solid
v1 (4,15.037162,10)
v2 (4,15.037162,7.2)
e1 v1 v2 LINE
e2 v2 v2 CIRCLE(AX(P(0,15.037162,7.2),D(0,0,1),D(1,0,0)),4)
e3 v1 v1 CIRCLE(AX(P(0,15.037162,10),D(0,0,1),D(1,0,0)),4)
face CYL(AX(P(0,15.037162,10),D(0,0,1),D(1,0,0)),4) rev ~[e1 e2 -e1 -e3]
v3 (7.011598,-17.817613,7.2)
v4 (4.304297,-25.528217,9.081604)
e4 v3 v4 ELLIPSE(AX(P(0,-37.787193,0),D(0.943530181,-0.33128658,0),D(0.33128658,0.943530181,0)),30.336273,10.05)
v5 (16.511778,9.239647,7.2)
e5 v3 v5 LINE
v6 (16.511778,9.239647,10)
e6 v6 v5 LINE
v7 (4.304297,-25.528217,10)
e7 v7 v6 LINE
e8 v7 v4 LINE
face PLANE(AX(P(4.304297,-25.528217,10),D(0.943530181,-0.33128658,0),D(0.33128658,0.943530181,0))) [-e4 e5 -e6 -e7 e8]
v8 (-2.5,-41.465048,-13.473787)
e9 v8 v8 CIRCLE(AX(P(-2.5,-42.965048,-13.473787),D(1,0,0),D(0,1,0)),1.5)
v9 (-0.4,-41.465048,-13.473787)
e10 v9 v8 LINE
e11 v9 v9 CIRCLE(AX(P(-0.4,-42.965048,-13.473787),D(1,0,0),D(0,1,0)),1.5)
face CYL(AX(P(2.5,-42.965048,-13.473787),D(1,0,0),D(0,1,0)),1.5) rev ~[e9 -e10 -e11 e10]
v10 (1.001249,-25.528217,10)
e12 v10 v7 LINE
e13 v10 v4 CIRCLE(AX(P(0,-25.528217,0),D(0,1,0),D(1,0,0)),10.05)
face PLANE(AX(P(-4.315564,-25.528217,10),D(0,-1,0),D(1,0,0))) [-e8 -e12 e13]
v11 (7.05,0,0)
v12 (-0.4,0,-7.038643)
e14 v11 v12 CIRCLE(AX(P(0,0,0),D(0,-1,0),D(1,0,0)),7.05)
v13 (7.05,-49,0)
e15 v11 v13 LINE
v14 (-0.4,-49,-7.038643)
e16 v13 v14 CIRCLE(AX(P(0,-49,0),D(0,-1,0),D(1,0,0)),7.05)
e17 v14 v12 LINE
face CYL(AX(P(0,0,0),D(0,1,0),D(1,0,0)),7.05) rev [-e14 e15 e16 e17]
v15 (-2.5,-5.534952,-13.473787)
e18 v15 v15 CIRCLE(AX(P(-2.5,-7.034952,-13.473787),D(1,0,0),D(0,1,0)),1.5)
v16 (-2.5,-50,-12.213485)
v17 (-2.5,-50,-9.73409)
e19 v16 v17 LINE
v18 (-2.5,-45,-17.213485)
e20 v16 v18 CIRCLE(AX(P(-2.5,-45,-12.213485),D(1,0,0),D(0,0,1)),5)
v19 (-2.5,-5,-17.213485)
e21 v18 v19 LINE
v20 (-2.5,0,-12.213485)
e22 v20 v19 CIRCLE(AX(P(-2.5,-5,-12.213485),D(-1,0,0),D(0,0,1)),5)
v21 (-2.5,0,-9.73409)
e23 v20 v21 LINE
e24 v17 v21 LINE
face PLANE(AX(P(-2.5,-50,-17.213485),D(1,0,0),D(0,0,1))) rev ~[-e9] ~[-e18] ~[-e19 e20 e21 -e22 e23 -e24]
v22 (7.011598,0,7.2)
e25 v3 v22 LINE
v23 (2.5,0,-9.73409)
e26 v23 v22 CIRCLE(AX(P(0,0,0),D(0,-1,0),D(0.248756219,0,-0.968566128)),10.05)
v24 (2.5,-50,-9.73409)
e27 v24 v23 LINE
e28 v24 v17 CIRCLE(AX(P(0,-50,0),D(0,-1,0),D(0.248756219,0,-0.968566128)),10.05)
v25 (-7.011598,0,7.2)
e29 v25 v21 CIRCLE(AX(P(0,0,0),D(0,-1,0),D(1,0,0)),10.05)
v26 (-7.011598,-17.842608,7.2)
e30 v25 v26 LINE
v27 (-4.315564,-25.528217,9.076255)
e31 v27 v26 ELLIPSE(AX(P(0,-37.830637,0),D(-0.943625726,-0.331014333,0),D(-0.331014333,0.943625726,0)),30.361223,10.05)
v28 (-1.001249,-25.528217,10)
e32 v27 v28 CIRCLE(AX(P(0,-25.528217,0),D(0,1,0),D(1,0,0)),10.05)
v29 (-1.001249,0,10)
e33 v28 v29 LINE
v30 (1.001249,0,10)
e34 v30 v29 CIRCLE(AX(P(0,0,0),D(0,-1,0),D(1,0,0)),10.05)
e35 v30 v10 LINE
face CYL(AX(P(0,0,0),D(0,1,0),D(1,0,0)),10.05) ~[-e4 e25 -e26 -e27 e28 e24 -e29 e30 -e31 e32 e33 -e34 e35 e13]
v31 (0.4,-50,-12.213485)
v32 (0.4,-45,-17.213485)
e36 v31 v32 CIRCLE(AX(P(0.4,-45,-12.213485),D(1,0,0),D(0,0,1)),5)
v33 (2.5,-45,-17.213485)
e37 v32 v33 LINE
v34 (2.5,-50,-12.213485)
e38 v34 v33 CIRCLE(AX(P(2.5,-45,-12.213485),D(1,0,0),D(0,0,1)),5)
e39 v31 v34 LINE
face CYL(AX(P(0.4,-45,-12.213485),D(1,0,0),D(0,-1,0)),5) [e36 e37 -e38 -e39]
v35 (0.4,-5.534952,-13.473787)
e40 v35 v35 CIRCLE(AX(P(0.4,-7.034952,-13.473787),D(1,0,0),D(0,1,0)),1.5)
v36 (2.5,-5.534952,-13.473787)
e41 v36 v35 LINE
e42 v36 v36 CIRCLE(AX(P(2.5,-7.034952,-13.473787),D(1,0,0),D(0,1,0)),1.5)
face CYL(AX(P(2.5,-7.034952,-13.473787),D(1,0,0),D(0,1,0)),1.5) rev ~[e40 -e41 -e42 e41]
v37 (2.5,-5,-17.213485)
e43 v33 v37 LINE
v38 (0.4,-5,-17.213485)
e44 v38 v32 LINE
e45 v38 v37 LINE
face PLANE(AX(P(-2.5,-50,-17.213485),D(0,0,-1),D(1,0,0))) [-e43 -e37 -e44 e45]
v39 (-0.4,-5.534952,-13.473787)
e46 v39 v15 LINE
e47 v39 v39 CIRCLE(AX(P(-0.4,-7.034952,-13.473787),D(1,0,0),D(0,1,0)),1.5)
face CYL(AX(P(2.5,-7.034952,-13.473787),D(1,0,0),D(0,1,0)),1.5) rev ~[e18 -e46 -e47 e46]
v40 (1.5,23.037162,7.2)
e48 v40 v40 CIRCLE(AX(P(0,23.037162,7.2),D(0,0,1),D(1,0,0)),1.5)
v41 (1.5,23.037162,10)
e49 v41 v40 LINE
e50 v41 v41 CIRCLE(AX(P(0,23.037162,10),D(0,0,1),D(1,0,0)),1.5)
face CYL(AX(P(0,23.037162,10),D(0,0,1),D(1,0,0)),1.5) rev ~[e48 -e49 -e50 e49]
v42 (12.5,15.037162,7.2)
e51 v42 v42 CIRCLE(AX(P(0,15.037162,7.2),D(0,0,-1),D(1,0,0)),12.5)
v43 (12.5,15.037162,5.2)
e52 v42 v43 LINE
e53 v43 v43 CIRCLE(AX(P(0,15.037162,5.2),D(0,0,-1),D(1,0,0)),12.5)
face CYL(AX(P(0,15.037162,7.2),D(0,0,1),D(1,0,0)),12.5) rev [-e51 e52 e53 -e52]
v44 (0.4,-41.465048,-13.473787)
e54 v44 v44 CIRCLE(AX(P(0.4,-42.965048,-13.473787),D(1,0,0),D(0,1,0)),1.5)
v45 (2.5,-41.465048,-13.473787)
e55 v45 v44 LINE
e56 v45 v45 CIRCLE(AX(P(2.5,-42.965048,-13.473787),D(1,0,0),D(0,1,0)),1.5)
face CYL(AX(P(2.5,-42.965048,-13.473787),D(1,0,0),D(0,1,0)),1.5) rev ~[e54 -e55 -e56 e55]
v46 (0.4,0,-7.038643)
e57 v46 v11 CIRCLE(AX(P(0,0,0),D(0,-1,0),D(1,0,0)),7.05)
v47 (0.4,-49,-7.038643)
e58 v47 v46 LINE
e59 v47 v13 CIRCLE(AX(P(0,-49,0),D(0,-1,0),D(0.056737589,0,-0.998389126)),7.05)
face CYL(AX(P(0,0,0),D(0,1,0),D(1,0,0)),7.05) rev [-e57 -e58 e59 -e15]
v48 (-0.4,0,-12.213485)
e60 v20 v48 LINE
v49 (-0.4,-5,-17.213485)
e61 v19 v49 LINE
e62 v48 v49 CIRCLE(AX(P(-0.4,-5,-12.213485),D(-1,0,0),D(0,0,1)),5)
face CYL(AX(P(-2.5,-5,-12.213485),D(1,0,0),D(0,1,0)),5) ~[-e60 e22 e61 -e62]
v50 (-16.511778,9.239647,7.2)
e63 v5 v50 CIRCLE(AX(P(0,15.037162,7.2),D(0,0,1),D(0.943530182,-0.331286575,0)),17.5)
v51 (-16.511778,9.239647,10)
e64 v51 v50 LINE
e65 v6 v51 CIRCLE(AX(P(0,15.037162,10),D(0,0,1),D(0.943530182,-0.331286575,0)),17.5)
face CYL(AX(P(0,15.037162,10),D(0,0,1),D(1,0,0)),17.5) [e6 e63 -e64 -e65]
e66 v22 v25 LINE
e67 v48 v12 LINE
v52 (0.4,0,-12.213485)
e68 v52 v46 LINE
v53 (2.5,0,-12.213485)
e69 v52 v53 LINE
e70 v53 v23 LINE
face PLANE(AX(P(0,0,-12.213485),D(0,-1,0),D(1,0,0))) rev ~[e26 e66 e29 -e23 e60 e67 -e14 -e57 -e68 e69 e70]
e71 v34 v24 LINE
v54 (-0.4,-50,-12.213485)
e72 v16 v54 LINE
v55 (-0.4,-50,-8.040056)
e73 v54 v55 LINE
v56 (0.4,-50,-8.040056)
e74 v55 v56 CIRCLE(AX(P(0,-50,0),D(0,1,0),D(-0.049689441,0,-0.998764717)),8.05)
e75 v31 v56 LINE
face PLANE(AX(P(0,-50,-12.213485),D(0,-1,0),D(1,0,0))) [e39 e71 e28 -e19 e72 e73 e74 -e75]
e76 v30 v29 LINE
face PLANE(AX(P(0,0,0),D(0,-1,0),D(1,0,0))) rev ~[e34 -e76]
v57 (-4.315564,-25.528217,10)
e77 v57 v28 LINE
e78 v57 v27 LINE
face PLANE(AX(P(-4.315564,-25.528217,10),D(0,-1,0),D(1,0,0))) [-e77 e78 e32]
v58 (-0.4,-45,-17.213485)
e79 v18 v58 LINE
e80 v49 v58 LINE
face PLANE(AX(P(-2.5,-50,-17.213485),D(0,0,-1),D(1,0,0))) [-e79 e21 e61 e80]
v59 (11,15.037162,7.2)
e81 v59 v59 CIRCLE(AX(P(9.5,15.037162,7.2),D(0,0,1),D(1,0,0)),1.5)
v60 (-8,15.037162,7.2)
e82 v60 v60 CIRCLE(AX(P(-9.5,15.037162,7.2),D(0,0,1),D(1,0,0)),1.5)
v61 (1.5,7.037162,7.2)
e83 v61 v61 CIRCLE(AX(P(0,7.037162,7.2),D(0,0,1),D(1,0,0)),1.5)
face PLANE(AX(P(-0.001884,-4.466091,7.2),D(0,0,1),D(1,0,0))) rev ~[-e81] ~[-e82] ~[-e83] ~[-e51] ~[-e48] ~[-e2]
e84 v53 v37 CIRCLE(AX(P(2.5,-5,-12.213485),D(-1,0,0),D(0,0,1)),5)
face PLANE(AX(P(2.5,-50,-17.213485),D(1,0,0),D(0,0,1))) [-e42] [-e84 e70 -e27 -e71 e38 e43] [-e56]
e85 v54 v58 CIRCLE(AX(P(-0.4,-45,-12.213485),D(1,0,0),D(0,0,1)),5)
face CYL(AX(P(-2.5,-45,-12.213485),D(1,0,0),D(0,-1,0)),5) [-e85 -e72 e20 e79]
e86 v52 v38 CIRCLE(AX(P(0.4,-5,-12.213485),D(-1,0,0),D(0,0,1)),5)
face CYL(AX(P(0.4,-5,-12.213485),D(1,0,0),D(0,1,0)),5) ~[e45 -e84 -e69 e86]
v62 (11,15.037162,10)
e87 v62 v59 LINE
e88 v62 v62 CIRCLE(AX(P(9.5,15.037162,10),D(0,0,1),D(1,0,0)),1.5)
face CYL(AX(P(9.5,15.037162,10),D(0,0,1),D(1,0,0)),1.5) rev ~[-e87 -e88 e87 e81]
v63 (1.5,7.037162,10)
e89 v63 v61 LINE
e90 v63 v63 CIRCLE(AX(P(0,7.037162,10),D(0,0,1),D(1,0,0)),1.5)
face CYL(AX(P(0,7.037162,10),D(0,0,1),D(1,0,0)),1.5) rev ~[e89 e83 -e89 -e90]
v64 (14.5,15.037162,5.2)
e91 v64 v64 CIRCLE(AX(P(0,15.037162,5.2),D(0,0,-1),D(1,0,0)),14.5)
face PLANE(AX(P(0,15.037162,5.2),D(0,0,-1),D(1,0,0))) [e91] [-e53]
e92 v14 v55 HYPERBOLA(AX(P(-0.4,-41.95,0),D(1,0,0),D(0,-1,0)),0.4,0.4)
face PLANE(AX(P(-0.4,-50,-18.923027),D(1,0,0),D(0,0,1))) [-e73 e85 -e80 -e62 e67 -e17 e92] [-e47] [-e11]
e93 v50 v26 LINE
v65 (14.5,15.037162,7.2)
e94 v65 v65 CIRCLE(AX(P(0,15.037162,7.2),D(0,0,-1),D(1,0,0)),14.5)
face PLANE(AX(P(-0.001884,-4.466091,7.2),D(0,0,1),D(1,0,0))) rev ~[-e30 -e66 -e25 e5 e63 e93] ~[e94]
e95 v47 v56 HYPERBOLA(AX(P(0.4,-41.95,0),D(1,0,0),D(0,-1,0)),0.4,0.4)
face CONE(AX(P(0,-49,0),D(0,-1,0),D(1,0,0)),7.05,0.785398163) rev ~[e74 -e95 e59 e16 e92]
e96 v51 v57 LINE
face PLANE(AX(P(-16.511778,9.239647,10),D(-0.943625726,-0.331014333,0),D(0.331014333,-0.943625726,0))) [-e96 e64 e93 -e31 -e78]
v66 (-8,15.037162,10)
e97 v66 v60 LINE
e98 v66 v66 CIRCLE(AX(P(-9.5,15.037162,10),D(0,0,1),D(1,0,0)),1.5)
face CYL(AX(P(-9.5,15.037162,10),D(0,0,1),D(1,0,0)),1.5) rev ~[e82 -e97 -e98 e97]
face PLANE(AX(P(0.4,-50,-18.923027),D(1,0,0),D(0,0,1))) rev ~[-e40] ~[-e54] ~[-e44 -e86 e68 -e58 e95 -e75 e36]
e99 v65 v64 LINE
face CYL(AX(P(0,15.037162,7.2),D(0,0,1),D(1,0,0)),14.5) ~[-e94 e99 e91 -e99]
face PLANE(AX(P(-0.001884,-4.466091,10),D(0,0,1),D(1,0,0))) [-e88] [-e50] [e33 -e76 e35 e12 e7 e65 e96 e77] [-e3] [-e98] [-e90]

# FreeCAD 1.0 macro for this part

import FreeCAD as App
import Part
import Sketcher


def edges_at(feature, points):
    """Names of the edges that pass closest to the given points."""
    edges = feature.Shape.Edges
    near = lambda p: min(range(len(edges)), key=lambda i: edges[i].distToShape(Part.Vertex(*p))[0])
    return sorted({f"Edge{near(p) + 1}" for p in points})


def add_polygon(sketch, points):
    """Adds a closed chain of lines whose ends are joined by coincident constraints."""
    first, n = sketch.GeometryCount, len(points)
    for a, b in zip(points, points[1:] + points[:1]):
        sketch.addGeometry(Part.LineSegment(App.Vector(*a, 0), App.Vector(*b, 0)), False)
    for i in range(n):
        sketch.addConstraint(Sketcher.Constraint("Coincident", first + i, 2, first + (i + 1) % n, 1))

doc = App.newDocument("Part")
body = doc.addObject("PartDesign::Body", "Body")

sketch1 = doc.addObject("Sketcher::SketchObject", "Sketch")
body.addObject(sketch1)
sketch1.AttachmentSupport = (doc.XZ_Plane, [""])
sketch1.MapMode = "FlatFace"
sketch1.addGeometry([
    Part.Circle(App.Vector(0, 0, 0), App.Vector(0, 0, 1), 10),
    Part.Circle(App.Vector(0, 0, 0), App.Vector(0, 0, 1), 7),
], False)
sketch1.addConstraint([
    Sketcher.Constraint("Coincident", 0, 3, -1, 1),
    Sketcher.Constraint("Coincident", 1, 3, -1, 1),
    Sketcher.Constraint("Diameter", 0, 20.1),
    Sketcher.Constraint("Diameter", 1, 14.1),
])
pad1 = doc.addObject("PartDesign::Pad", "Pad")
body.addObject(pad1)
pad1.Profile = sketch1
pad1.Length = 50

sketch2 = doc.addObject("Sketcher::SketchObject", "Sketch001")
body.addObject(sketch2)
sketch2.AttachmentSupport = (doc.XY_Plane, [""])
sketch2.MapMode = "FlatFace"
sketch2.AttachmentOffset = App.Placement(App.Vector(0, 0, 10), App.Rotation())
sketch2.addGeometry(Part.Circle(App.Vector(0, 15, 0), App.Vector(0, 0, 1), 18), False)
sketch2.addConstraint([
    Sketcher.Constraint("PointOnObject", 0, 3, -2),
    Sketcher.Constraint("Diameter", 0, 35.0),
    Sketcher.Constraint("DistanceY", -1, 1, 0, 3, 15.037162),
])
pad2 = doc.addObject("PartDesign::Pad", "Pad001")
body.addObject(pad2)
pad2.Profile = sketch2
pad2.Length = 2.8
pad2.Reversed = True

sketch3 = doc.addObject("Sketcher::SketchObject", "Sketch002")
body.addObject(sketch3)
sketch3.AttachmentSupport = (doc.XZ_Plane, [""])
sketch3.MapMode = "FlatFace"
sketch3.AttachmentOffset = App.Placement(App.Vector(0, 0, 50), App.Rotation())
add_polygon(sketch3, [(-2, -7), (-2, -17), (2, -17), (2, -7)])
sketch3.addConstraint([
    Sketcher.Constraint("Vertical", 0),
    Sketcher.Constraint("Horizontal", 1),
    Sketcher.Constraint("Vertical", 2),
    Sketcher.Constraint("Horizontal", 3),
    Sketcher.Constraint("DistanceX", 1, 1, 1, 2, 5.0),
    Sketcher.Constraint("DistanceY", 0, 2, 0, 1, 10.0),
    Sketcher.Constraint("DistanceX", 0, 2, -1, 1, 2.5),
    Sketcher.Constraint("DistanceY", 0, 2, -1, 1, 17.213485),
])
pad3 = doc.addObject("PartDesign::Pad", "Pad002")
body.addObject(pad3)
pad3.Profile = sketch3
pad3.Length = 50
pad3.Reversed = True

sketch4 = doc.addObject("Sketcher::SketchObject", "Sketch003")
body.addObject(sketch4)
sketch4.AttachmentSupport = (doc.XZ_Plane, [""])
sketch4.MapMode = "FlatFace"
sketch4.AttachmentOffset = App.Placement(App.Vector(0, 0, 50), App.Rotation())
add_polygon(sketch4, [(-0.4, -6.3), (-0.4, -18.9), (0.4, -18.9), (0.4, -6.3)])
sketch4.addConstraint([
    Sketcher.Constraint("Vertical", 0),
    Sketcher.Constraint("Horizontal", 1),
    Sketcher.Constraint("Vertical", 2),
    Sketcher.Constraint("Horizontal", 3),
    Sketcher.Constraint("DistanceX", 1, 1, 1, 2, 0.8),
    Sketcher.Constraint("DistanceX", 0, 2, -1, 1, 0.4),
    Sketcher.Constraint("DistanceY", 0, 2, 0, 1, 12.637284),
    Sketcher.Constraint("DistanceY", 0, 2, -1, 1, 18.923027),
])
pocket1 = doc.addObject("PartDesign::Pocket", "Pocket")
body.addObject(pocket1)
pocket1.Profile = sketch4
pocket1.Type = "ThroughAll"

sketch5 = doc.addObject("Sketcher::SketchObject", "Sketch004")
body.addObject(sketch5)
sketch5.AttachmentSupport = (doc.XY_Plane, [""])
sketch5.MapMode = "FlatFace"
sketch5.AttachmentOffset = App.Placement(App.Vector(0, 0, 10), App.Rotation())
add_polygon(sketch5, [(4, -26), (17, 9), (-17, 9), (-4, -26)])
sketch5.addConstraint([
    Sketcher.Constraint("Horizontal", 1),
    Sketcher.Constraint("Horizontal", 3),
    Sketcher.Constraint("DistanceX", 3, 1, 3, 2, 8.619861),
    Sketcher.Constraint("DistanceX", 1, 2, 1, 1, 33.023556),
    Sketcher.Constraint("DistanceX", 3, 2, 0, 2, 12.207481),
    Sketcher.Constraint("Distance", 0, 36.848704),
    Sketcher.Constraint("DistanceX", -1, 1, 0, 2, 16.511778),
    Sketcher.Constraint("DistanceY", -1, 1, 0, 2, 9.239647),
])
pad4 = doc.addObject("PartDesign::Pad", "Pad003")
body.addObject(pad4)
pad4.Profile = sketch5
pad4.Length = 2.8
pad4.Reversed = True

sketch6 = doc.addObject("Sketcher::SketchObject", "Sketch005")
body.addObject(sketch6)
sketch6.AttachmentSupport = (doc.XY_Plane, [""])
sketch6.MapMode = "FlatFace"
sketch6.AttachmentOffset = App.Placement(App.Vector(0, 0, 10), App.Rotation())
sketch6.addGeometry([
    Part.Circle(App.Vector(0, 23, 0), App.Vector(0, 0, 1), 1.5),
    Part.Circle(App.Vector(-9.5, 15, 0), App.Vector(0, 0, 1), 1.5),
    Part.Circle(App.Vector(0, 7, 0), App.Vector(0, 0, 1), 1.5),
    Part.Circle(App.Vector(9.5, 15, 0), App.Vector(0, 0, 1), 1.5),
    Part.Circle(App.Vector(0, 15, 0), App.Vector(0, 0, 1), 4),
], False)
sketch6.addConstraint([
    Sketcher.Constraint("Equal", 0, 1),
    Sketcher.Constraint("Equal", 1, 2),
    Sketcher.Constraint("Equal", 2, 3),
    Sketcher.Constraint("Symmetric", 1, 3, 3, 3, -2),
    Sketcher.Constraint("PointOnObject", 0, 3, -2),
    Sketcher.Constraint("PointOnObject", 2, 3, -2),
    Sketcher.Constraint("PointOnObject", 4, 3, -2),
    Sketcher.Constraint("Horizontal", 3, 3, 4, 3),
    Sketcher.Constraint("Diameter", 0, 3.0),
    Sketcher.Constraint("Diameter", 4, 8.0),
    Sketcher.Constraint("DistanceY", 1, 3, 0, 3, 8.0),
    Sketcher.Constraint("DistanceY", 2, 3, 1, 3, 8.0),
    Sketcher.Constraint("DistanceX", 1, 3, 3, 3, 19.0),
    Sketcher.Constraint("DistanceY", -1, 1, 0, 3, 23.037162),
])
pocket2 = doc.addObject("PartDesign::Pocket", "Pocket001")
body.addObject(pocket2)
pocket2.Profile = sketch6
pocket2.Length = 25

sketch7 = doc.addObject("Sketcher::SketchObject", "Sketch006")
body.addObject(sketch7)
sketch7.AttachmentSupport = (doc.XY_Plane, [""])
sketch7.MapMode = "FlatFace"
sketch7.AttachmentOffset = App.Placement(App.Vector(0, 0, 7.2), App.Rotation())
sketch7.addGeometry([
    Part.Circle(App.Vector(0, 15, 0), App.Vector(0, 0, 1), 14),
    Part.Circle(App.Vector(0, 15, 0), App.Vector(0, 0, 1), 12),
], False)
sketch7.addConstraint([
    Sketcher.Constraint("Coincident", 1, 3, 0, 3),
    Sketcher.Constraint("PointOnObject", 0, 3, -2),
    Sketcher.Constraint("Diameter", 0, 29.0),
    Sketcher.Constraint("Diameter", 1, 25.0),
    Sketcher.Constraint("DistanceY", -1, 1, 0, 3, 15.037162),
])
pad5 = doc.addObject("PartDesign::Pad", "Pad004")
body.addObject(pad5)
pad5.Profile = sketch7
pad5.Length = 2
pad5.Reversed = True

sketch8 = doc.addObject("Sketcher::SketchObject", "Sketch007")
body.addObject(sketch8)
sketch8.AttachmentSupport = (doc.YZ_Plane, [""])
sketch8.MapMode = "FlatFace"
sketch8.AttachmentOffset = App.Placement(App.Vector(0, 0, 2.5), App.Rotation())
sketch8.addGeometry([
    Part.Circle(App.Vector(-7, -13.5, 0), App.Vector(0, 0, 1), 1.5),
    Part.Circle(App.Vector(-43, -13.5, 0), App.Vector(0, 0, 1), 1.5),
], False)
sketch8.addConstraint([
    Sketcher.Constraint("Equal", 0, 1),
    Sketcher.Constraint("Horizontal", 0, 3, 1, 3),
    Sketcher.Constraint("Diameter", 0, 3.0),
    Sketcher.Constraint("DistanceX", 0, 3, -1, 1, 7.034952),
    Sketcher.Constraint("DistanceX", 1, 3, -1, 1, 42.965048),
    Sketcher.Constraint("DistanceY", 0, 3, -1, 1, 13.473787),
])
pocket3 = doc.addObject("PartDesign::Pocket", "Pocket002")
body.addObject(pocket3)
pocket3.Profile = sketch8
pocket3.Type = "ThroughAll"
doc.recompute()

fillet = doc.addObject("PartDesign::Fillet", "Fillet")
body.addObject(fillet)
fillet.Base = (pocket3, edges_at(pocket3, [
    (1.45, -50, -17.213),
    (-1.45, -50, -17.213),
    (1.45, 0, -17.213),
    (-1.45, 0, -17.213),
]))
fillet.Radius = 5
doc.recompute()

chamfer = doc.addObject("PartDesign::Chamfer", "Chamfer")
body.addObject(chamfer)
chamfer.Base = (fillet, edges_at(fillet, [(-4.842, -50, 5.125)]))
chamfer.Size = 1

doc.recompute()
